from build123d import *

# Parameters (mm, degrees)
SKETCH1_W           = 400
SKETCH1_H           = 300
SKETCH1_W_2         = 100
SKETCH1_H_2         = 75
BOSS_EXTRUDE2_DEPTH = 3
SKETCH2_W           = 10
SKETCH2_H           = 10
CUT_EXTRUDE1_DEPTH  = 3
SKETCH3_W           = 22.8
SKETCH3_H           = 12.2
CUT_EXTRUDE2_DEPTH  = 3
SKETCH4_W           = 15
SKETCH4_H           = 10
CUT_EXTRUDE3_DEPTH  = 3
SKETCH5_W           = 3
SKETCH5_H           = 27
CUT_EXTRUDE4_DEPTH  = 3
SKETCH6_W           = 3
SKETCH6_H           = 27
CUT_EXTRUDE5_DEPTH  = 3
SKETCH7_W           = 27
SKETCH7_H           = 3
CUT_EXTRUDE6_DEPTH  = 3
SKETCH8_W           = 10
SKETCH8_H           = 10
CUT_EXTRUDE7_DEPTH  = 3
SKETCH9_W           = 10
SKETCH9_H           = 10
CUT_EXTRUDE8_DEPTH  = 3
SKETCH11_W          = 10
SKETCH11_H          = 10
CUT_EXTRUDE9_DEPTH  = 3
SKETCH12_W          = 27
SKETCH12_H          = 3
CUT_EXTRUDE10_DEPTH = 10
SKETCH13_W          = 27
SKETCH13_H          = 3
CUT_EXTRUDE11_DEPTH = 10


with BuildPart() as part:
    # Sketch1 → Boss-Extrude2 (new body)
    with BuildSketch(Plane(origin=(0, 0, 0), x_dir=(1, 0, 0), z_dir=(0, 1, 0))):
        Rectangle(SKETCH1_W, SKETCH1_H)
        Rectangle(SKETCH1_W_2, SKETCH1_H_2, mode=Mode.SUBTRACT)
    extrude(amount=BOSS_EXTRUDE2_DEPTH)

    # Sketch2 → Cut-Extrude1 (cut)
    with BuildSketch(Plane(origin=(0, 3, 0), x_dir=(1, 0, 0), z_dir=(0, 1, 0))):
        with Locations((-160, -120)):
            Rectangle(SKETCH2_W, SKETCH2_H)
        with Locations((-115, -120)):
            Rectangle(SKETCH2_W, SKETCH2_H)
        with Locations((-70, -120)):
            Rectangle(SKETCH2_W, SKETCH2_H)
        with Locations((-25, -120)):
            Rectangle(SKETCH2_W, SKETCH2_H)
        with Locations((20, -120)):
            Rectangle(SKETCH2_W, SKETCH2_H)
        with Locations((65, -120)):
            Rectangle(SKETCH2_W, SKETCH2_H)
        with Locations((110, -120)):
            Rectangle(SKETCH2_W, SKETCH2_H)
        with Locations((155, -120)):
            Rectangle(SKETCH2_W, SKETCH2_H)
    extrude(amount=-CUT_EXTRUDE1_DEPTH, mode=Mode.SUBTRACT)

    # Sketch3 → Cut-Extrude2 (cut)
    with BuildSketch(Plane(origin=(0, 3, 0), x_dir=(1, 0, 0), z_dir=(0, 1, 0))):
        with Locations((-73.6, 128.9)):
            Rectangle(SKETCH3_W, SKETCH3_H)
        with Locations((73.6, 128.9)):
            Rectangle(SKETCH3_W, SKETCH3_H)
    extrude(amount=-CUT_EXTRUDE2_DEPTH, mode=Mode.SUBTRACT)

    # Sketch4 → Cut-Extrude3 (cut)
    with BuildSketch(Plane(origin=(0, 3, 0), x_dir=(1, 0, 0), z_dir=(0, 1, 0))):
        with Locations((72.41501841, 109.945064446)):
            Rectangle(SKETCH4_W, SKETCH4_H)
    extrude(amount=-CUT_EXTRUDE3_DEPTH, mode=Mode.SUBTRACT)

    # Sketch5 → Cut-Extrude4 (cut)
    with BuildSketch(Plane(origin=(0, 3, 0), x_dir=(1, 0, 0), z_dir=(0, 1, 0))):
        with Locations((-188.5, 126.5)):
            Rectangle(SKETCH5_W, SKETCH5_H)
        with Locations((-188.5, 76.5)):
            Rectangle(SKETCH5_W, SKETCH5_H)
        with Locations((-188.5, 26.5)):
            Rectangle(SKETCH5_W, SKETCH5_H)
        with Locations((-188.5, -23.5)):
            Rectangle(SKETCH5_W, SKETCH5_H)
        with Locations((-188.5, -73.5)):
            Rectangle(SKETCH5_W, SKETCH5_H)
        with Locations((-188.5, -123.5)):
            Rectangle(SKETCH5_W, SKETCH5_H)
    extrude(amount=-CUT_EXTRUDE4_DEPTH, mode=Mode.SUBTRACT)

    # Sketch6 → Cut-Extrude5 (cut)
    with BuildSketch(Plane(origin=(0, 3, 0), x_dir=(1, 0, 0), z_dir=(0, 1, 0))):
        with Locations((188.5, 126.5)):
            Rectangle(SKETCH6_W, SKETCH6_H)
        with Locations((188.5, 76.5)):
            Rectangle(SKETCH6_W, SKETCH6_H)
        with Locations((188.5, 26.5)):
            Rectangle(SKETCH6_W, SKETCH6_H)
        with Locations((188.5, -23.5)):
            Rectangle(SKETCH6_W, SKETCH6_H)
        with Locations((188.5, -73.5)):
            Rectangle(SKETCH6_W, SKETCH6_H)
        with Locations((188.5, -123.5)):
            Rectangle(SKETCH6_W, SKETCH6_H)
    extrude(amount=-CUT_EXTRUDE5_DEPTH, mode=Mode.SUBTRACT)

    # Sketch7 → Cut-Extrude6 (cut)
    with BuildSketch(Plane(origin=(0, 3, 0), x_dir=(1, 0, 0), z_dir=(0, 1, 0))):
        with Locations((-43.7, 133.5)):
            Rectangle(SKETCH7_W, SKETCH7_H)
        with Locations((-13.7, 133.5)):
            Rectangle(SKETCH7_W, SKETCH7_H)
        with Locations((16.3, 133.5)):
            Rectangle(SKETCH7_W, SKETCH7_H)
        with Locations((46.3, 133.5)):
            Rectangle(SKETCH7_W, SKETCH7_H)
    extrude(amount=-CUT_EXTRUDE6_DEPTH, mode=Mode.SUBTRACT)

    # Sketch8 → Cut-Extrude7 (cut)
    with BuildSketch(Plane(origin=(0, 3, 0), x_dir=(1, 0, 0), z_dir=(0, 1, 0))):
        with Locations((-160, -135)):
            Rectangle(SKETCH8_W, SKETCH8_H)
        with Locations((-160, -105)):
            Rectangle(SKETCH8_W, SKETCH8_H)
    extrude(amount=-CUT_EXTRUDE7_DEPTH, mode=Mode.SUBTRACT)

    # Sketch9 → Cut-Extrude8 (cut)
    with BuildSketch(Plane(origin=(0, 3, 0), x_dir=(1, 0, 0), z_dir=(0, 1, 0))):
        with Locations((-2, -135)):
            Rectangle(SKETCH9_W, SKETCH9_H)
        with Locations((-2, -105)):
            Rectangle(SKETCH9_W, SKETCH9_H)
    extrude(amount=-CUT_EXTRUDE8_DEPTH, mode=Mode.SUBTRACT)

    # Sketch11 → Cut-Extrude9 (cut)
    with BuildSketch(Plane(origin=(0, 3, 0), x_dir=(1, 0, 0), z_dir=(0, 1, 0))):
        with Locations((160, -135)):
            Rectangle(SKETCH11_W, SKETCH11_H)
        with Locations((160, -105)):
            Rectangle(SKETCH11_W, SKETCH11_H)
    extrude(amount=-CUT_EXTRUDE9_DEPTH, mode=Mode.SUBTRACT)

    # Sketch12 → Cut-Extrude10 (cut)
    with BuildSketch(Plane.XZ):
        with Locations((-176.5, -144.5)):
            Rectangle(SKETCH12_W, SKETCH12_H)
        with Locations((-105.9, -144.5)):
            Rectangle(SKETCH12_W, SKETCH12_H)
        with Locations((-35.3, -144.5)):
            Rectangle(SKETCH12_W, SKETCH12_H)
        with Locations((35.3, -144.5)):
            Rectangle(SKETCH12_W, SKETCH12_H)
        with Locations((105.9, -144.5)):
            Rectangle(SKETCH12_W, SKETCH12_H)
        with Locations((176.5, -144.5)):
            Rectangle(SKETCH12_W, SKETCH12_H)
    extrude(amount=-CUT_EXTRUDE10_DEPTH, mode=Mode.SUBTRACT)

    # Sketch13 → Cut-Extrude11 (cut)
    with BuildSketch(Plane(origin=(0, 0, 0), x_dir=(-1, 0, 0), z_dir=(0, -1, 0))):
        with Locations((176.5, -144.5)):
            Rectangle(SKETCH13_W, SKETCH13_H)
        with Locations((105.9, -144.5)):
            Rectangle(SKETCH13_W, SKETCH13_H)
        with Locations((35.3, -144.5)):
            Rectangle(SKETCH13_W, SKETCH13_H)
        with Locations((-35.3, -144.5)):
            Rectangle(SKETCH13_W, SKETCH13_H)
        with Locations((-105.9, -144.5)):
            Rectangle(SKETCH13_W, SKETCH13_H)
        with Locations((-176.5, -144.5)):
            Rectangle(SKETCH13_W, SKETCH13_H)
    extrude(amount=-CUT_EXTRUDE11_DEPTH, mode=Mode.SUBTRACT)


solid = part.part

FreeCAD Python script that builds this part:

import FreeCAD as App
import Part
import Sketcher

V = App.Vector
Q = App.Units.Quantity

doc = App.newDocument("Part")
body = doc.addObject("PartDesign::Body", "Body")

sketch1 = doc.addObject("Sketcher::SketchObject", "Sketch")
body.addObject(sketch1)
sketch1.AttachmentSupport = (doc.XZ_Plane, [""])
sketch1.MapMode = "FlatFace"
sketch1.addGeometry([
    Part.LineSegment(V(-200, -150, 0), V(-200, 150, 0)),
    Part.LineSegment(V(-200, 150, 0), V(200, 150, 0)),
    Part.LineSegment(V(200, 150, 0), V(200, -150, 0)),
    Part.LineSegment(V(200, -150, 0), V(-200, -150, 0)),
    Part.LineSegment(V(50, 38, 0), V(-50, 38, 0)),
    Part.LineSegment(V(-50, 38, 0), V(-50, -38, 0)),
    Part.LineSegment(V(-50, -38, 0), V(50, -38, 0)),
    Part.LineSegment(V(50, -38, 0), V(50, 38, 0)),
], False)
sketch1.addConstraint([
    Sketcher.Constraint("Coincident", 0, 2, 1, 1),
    Sketcher.Constraint("Coincident", 1, 2, 2, 1),
    Sketcher.Constraint("Coincident", 2, 2, 3, 1),
    Sketcher.Constraint("Coincident", 3, 2, 0, 1),
    Sketcher.Constraint("Coincident", 4, 2, 5, 1),
    Sketcher.Constraint("Coincident", 5, 2, 6, 1),
    Sketcher.Constraint("Coincident", 6, 2, 7, 1),
    Sketcher.Constraint("Coincident", 7, 2, 4, 1),
    Sketcher.Constraint("Vertical", 0),
    Sketcher.Constraint("Horizontal", 1),
    Sketcher.Constraint("Vertical", 2),
    Sketcher.Constraint("Horizontal", 3),
    Sketcher.Constraint("Horizontal", 4),
    Sketcher.Constraint("Vertical", 5),
    Sketcher.Constraint("Horizontal", 6),
    Sketcher.Constraint("Vertical", 7),
    Sketcher.Constraint("Symmetric", 0, 2, 2, 2, -1, 1),
    Sketcher.Constraint("Symmetric", 4, 2, 6, 2, -1, 1),
    Sketcher.Constraint("DistanceX", 1, 1, 1, 2, Q("400 mm")),
    Sketcher.Constraint("DistanceX", 4, 2, 4, 1, Q("100 mm")),
    Sketcher.Constraint("DistanceY", 0, 1, 0, 2, Q("300 mm")),
    Sketcher.Constraint("DistanceY", 5, 2, 5, 1, Q("75 mm")),
])
pad1 = doc.addObject("PartDesign::Pad", "Pad")
body.addObject(pad1)
pad1.Profile = sketch1
pad1.Length = 3
pad1.Reversed = True

sketch2 = doc.addObject("Sketcher::SketchObject", "Sketch001")
body.addObject(sketch2)
sketch2.AttachmentSupport = (doc.XZ_Plane, [""])
sketch2.MapMode = "FlatFace"
sketch2.AttachmentOffset = App.Placement(V(0, 0, -3), App.Rotation())
sketch2.addGeometry([
    Part.LineSegment(V(-165, 115, 0), V(-165, 125, 0)),
    Part.LineSegment(V(-165, 125, 0), V(-155, 125, 0)),
    Part.LineSegment(V(-155, 125, 0), V(-155, 115, 0)),
    Part.LineSegment(V(-155, 115, 0), V(-165, 115, 0)),
    Part.LineSegment(V(-120, 115, 0), V(-120, 125, 0)),
    Part.LineSegment(V(-120, 125, 0), V(-110, 125, 0)),
    Part.LineSegment(V(-110, 125, 0), V(-110, 115, 0)),
    Part.LineSegment(V(-110, 115, 0), V(-120, 115, 0)),
    Part.LineSegment(V(-75, 115, 0), V(-75, 125, 0)),
    Part.LineSegment(V(-75, 125, 0), V(-65, 125, 0)),
    Part.LineSegment(V(-65, 125, 0), V(-65, 115, 0)),
    Part.LineSegment(V(-65, 115, 0), V(-75, 115, 0)),
    Part.LineSegment(V(-30, 115, 0), V(-30, 125, 0)),
    Part.LineSegment(V(-30, 125, 0), V(-20, 125, 0)),
    Part.LineSegment(V(-20, 125, 0), V(-20, 115, 0)),
    Part.LineSegment(V(-20, 115, 0), V(-30, 115, 0)),
    Part.LineSegment(V(15, 115, 0), V(15, 125, 0)),
    Part.LineSegment(V(15, 125, 0), V(25, 125, 0)),
    Part.LineSegment(V(25, 125, 0), V(25, 115, 0)),
    Part.LineSegment(V(25, 115, 0), V(15, 115, 0)),
    Part.LineSegment(V(60, 115, 0), V(60, 125, 0)),
    Part.LineSegment(V(60, 125, 0), V(70, 125, 0)),
    Part.LineSegment(V(70, 125, 0), V(70, 115, 0)),
    Part.LineSegment(V(70, 115, 0), V(60, 115, 0)),
    Part.LineSegment(V(105, 115, 0), V(105, 125, 0)),
    Part.LineSegment(V(105, 125, 0), V(115, 125, 0)),
    Part.LineSegment(V(115, 125, 0), V(115, 115, 0)),
    Part.LineSegment(V(115, 115, 0), V(105, 115, 0)),
    Part.LineSegment(V(150, 115, 0), V(150, 125, 0)),
    Part.LineSegment(V(150, 125, 0), V(160, 125, 0)),
    Part.LineSegment(V(160, 125, 0), V(160, 115, 0)),
    Part.LineSegment(V(160, 115, 0), V(150, 115, 0)),
], False)
sketch2.addConstraint([
    Sketcher.Constraint("Coincident", 0, 2, 1, 1),
    Sketcher.Constraint("Coincident", 1, 2, 2, 1),
    Sketcher.Constraint("Coincident", 2, 2, 3, 1),
    Sketcher.Constraint("Coincident", 3, 2, 0, 1),
    Sketcher.Constraint("Coincident", 4, 2, 5, 1),
    Sketcher.Constraint("Coincident", 5, 2, 6, 1),
    Sketcher.Constraint("Coincident", 6, 2, 7, 1),
    Sketcher.Constraint("Coincident", 7, 2, 4, 1),
    Sketcher.Constraint("Coincident", 8, 2, 9, 1),
    Sketcher.Constraint("Coincident", 9, 2, 10, 1),
    Sketcher.Constraint("Coincident", 10, 2, 11, 1),
    Sketcher.Constraint("Coincident", 11, 2, 8, 1),
    Sketcher.Constraint("Coincident", 12, 2, 13, 1),
    Sketcher.Constraint("Coincident", 13, 2, 14, 1),
    Sketcher.Constraint("Coincident", 14, 2, 15, 1),
    Sketcher.Constraint("Coincident", 15, 2, 12, 1),
    Sketcher.Constraint("Coincident", 16, 2, 17, 1),
    Sketcher.Constraint("Coincident", 17, 2, 18, 1),
    Sketcher.Constraint("Coincident", 18, 2, 19, 1),
    Sketcher.Constraint("Coincident", 19, 2, 16, 1),
    Sketcher.Constraint("Coincident", 20, 2, 21, 1),
    Sketcher.Constraint("Coincident", 21, 2, 22, 1),
    Sketcher.Constraint("Coincident", 22, 2, 23, 1),
    Sketcher.Constraint("Coincident", 23, 2, 20, 1),
    Sketcher.Constraint("Coincident", 24, 2, 25, 1),
    Sketcher.Constraint("Coincident", 25, 2, 26, 1),
    Sketcher.Constraint("Coincident", 26, 2, 27, 1),
    Sketcher.Constraint("Coincident", 27, 2, 24, 1),
    Sketcher.Constraint("Coincident", 28, 2, 29, 1),
    Sketcher.Constraint("Coincident", 29, 2, 30, 1),
    Sketcher.Constraint("Coincident", 30, 2, 31, 1),
    Sketcher.Constraint("Coincident", 31, 2, 28, 1),
    Sketcher.Constraint("Vertical", 0),
    Sketcher.Constraint("Horizontal", 1),
    Sketcher.Constraint("Vertical", 2),
    Sketcher.Constraint("Horizontal", 3),
    Sketcher.Constraint("Vertical", 4),
    Sketcher.Constraint("Horizontal", 5),
    Sketcher.Constraint("Vertical", 6),
    Sketcher.Constraint("Horizontal", 7),
    Sketcher.Constraint("Vertical", 8),
    Sketcher.Constraint("Horizontal", 9),
    Sketcher.Constraint("Vertical", 10),
    Sketcher.Constraint("Horizontal", 11),
    Sketcher.Constraint("Vertical", 12),
    Sketcher.Constraint("Horizontal", 13),
    Sketcher.Constraint("Vertical", 14),
    Sketcher.Constraint("Horizontal", 15),
    Sketcher.Constraint("Vertical", 16),
    Sketcher.Constraint("Horizontal", 17),
    Sketcher.Constraint("Vertical", 18),
    Sketcher.Constraint("Horizontal", 19),
    Sketcher.Constraint("Vertical", 20),
    Sketcher.Constraint("Horizontal", 21),
    Sketcher.Constraint("Vertical", 22),
    Sketcher.Constraint("Horizontal", 23),
    Sketcher.Constraint("Vertical", 24),
    Sketcher.Constraint("Horizontal", 25),
    Sketcher.Constraint("Vertical", 26),
    Sketcher.Constraint("Horizontal", 27),
    Sketcher.Constraint("Vertical", 28),
    Sketcher.Constraint("Horizontal", 29),
    Sketcher.Constraint("Vertical", 30),
    Sketcher.Constraint("Horizontal", 31),
    Sketcher.Constraint("Horizontal", 1, 2, 4, 2),
    Sketcher.Constraint("Horizontal", 3, 2, 6, 2),
    Sketcher.Constraint("Horizontal", 5, 2, 8, 2),
    Sketcher.Constraint("Horizontal", 7, 2, 10, 2),
    Sketcher.Constraint("Horizontal", 9, 2, 12, 2),
    Sketcher.Constraint("Horizontal", 11, 2, 14, 2),
    Sketcher.Constraint("Horizontal", 13, 2, 16, 2),
    Sketcher.Constraint("Horizontal", 15, 2, 18, 2),
    Sketcher.Constraint("Horizontal", 17, 2, 20, 2),
    Sketcher.Constraint("Horizontal", 19, 2, 22, 2),
    Sketcher.Constraint("Horizontal", 21, 2, 24, 2),
    Sketcher.Constraint("Horizontal", 23, 2, 26, 2),
    Sketcher.Constraint("Horizontal", 25, 2, 28, 2),
    Sketcher.Constraint("Horizontal", 27, 2, 30, 2),
    Sketcher.Constraint("Equal", 3, 5),
    Sketcher.Constraint("Equal", 7, 9),
    Sketcher.Constraint("Equal", 11, 13),
    Sketcher.Constraint("Equal", 15, 17),
    Sketcher.Constraint("Equal", 19, 21),
    Sketcher.Constraint("Equal", 23, 25),
    Sketcher.Constraint("Equal", 27, 29),
    Sketcher.Constraint("Equal", 31, 0),
    Sketcher.Constraint("DistanceX", 1, 1, 1, 2, Q("10 mm")),
    Sketcher.Constraint("DistanceX", 0, 2, -1, 1, Q("165 mm")),
    Sketcher.Constraint("DistanceY", -1, 1, 0, 2, Q("125 mm")),
    Sketcher.Constraint("DistanceX", 4, 2, -1, 1, Q("120 mm")),
    Sketcher.Constraint("DistanceX", 8, 2, -1, 1, Q("75 mm")),
    Sketcher.Constraint("DistanceX", 12, 2, -1, 1, Q("30 mm")),
    Sketcher.Constraint("DistanceX", -1, 1, 16, 2, Q("15 mm")),
    Sketcher.Constraint("DistanceX", -1, 1, 20, 2, Q("60 mm")),
    Sketcher.Constraint("DistanceX", -1, 1, 24, 2, Q("105 mm")),
    Sketcher.Constraint("DistanceX", -1, 1, 28, 2, Q("150 mm")),
])
pocket1 = doc.addObject("PartDesign::Pocket", "Pocket")
body.addObject(pocket1)
pocket1.Profile = sketch2
pocket1.Length = 3
pocket1.Reversed = True

sketch3 = doc.addObject("Sketcher::SketchObject", "Sketch002")
body.addObject(sketch3)
sketch3.AttachmentSupport = (doc.XZ_Plane, [""])
sketch3.MapMode = "FlatFace"
sketch3.AttachmentOffset = App.Placement(V(0, 0, -3), App.Rotation())
sketch3.addGeometry([
    Part.LineSegment(V(-85, -135, 0), V(-85, -123, 0)),
    Part.LineSegment(V(-85, -123, 0), V(-62, -123, 0)),
    Part.LineSegment(V(-62, -123, 0), V(-62, -135, 0)),
    Part.LineSegment(V(-62, -135, 0), V(-85, -135, 0)),
    Part.LineSegment(V(62, -135, 0), V(62, -123, 0)),
    Part.LineSegment(V(62, -123, 0), V(85, -123, 0)),
    Part.LineSegment(V(85, -123, 0), V(85, -135, 0)),
    Part.LineSegment(V(85, -135, 0), V(62, -135, 0)),
], False)
sketch3.addConstraint([
    Sketcher.Constraint("Coincident", 0, 2, 1, 1),
    Sketcher.Constraint("Coincident", 1, 2, 2, 1),
    Sketcher.Constraint("Coincident", 2, 2, 3, 1),
    Sketcher.Constraint("Coincident", 3, 2, 0, 1),
    Sketcher.Constraint("Coincident", 4, 2, 5, 1),
    Sketcher.Constraint("Coincident", 5, 2, 6, 1),
    Sketcher.Constraint("Coincident", 6, 2, 7, 1),
    Sketcher.Constraint("Coincident", 7, 2, 4, 1),
    Sketcher.Constraint("Vertical", 0),
    Sketcher.Constraint("Horizontal", 1),
    Sketcher.Constraint("Vertical", 2),
    Sketcher.Constraint("Horizontal", 3),
    Sketcher.Constraint("Vertical", 4),
    Sketcher.Constraint("Horizontal", 5),
    Sketcher.Constraint("Vertical", 6),
    Sketcher.Constraint("Horizontal", 7),
    Sketcher.Constraint("Symmetric", 1, 2, 4, 2, -2),
    Sketcher.Constraint("Symmetric", 3, 2, 6, 2, -2),
    Sketcher.Constraint("DistanceX", 1, 1, 1, 2, Q("22.8 mm")),
    Sketcher.Constraint("DistanceY", 0, 1, 0, 2, Q("12.2 mm")),
    Sketcher.Constraint("DistanceX", 0, 2, -1, 1, Q("85 mm")),
    Sketcher.Constraint("DistanceY", 2, 2, -1, 1, Q("135 mm")),
])
pocket2 = doc.addObject("PartDesign::Pocket", "Pocket001")
body.addObject(pocket2)
pocket2.Profile = sketch3
pocket2.Length = 3
pocket2.Reversed = True

sketch4 = doc.addObject("Sketcher::SketchObject", "Sketch003")
body.addObject(sketch4)
sketch4.AttachmentSupport = (doc.XZ_Plane, [""])
sketch4.MapMode = "FlatFace"
sketch4.AttachmentOffset = App.Placement(V(0, 0, -3), App.Rotation())
sketch4.addGeometry([
    Part.LineSegment(V(65, -115, 0), V(65, -105, 0)),
    Part.LineSegment(V(65, -105, 0), V(80, -105, 0)),
    Part.LineSegment(V(80, -105, 0), V(80, -115, 0)),
    Part.LineSegment(V(80, -115, 0), V(65, -115, 0)),
], False)
sketch4.addConstraint([
    Sketcher.Constraint("Coincident", 0, 2, 1, 1),
    Sketcher.Constraint("Coincident", 1, 2, 2, 1),
    Sketcher.Constraint("Coincident", 2, 2, 3, 1),
    Sketcher.Constraint("Coincident", 3, 2, 0, 1),
    Sketcher.Constraint("Vertical", 0),
    Sketcher.Constraint("Horizontal", 1),
    Sketcher.Constraint("Vertical", 2),
    Sketcher.Constraint("Horizontal", 3),
    Sketcher.Constraint("DistanceX", 1, 1, 1, 2, Q("15 mm")),
    Sketcher.Constraint("DistanceY", 0, 1, 0, 2, Q("10 mm")),
    Sketcher.Constraint("DistanceX", -1, 1, 0, 2, Q("64.915018 mm")),
    Sketcher.Constraint("DistanceY", 0, 2, -1, 1, Q("104.945064 mm")),
])
pocket3 = doc.addObject("PartDesign::Pocket", "Pocket002")
body.addObject(pocket3)
pocket3.Profile = sketch4
pocket3.Length = 3
pocket3.Reversed = True

sketch5 = doc.addObject("Sketcher::SketchObject", "Sketch004")
body.addObject(sketch5)
sketch5.AttachmentSupport = (doc.XZ_Plane, [""])
sketch5.MapMode = "FlatFace"
sketch5.AttachmentOffset = App.Placement(V(0, 0, -3), App.Rotation())
sketch5.addGeometry([
    Part.LineSegment(V(-190, -140, 0), V(-190, -113, 0)),
    Part.LineSegment(V(-190, -113, 0), V(-187, -113, 0)),
    Part.LineSegment(V(-187, -113, 0), V(-187, -140, 0)),
    Part.LineSegment(V(-187, -140, 0), V(-190, -140, 0)),
    Part.LineSegment(V(-190, -90, 0), V(-190, -63, 0)),
    Part.LineSegment(V(-190, -63, 0), V(-187, -63, 0)),
    Part.LineSegment(V(-187, -63, 0), V(-187, -90, 0)),
    Part.LineSegment(V(-187, -90, 0), V(-190, -90, 0)),
    Part.LineSegment(V(-190, -40, 0), V(-190, -13, 0)),
    Part.LineSegment(V(-190, -13, 0), V(-187, -13, 0)),
    Part.LineSegment(V(-187, -13, 0), V(-187, -40, 0)),
    Part.LineSegment(V(-187, -40, 0), V(-190, -40, 0)),
    Part.LineSegment(V(-190, 10, 0), V(-190, 37, 0)),
    Part.LineSegment(V(-190, 37, 0), V(-187, 37, 0)),
    Part.LineSegment(V(-187, 37, 0), V(-187, 10, 0)),
    Part.LineSegment(V(-187, 10, 0), V(-190, 10, 0)),
    Part.LineSegment(V(-190, 60, 0), V(-190, 87, 0)),
    Part.LineSegment(V(-190, 87, 0), V(-187, 87, 0)),
    Part.LineSegment(V(-187, 87, 0), V(-187, 60, 0)),
    Part.LineSegment(V(-187, 60, 0), V(-190, 60, 0)),
    Part.LineSegment(V(-190, 110, 0), V(-190, 137, 0)),
    Part.LineSegment(V(-190, 137, 0), V(-187, 137, 0)),
    Part.LineSegment(V(-187, 137, 0), V(-187, 110, 0)),
    Part.LineSegment(V(-187, 110, 0), V(-190, 110, 0)),
], False)
sketch5.addConstraint([
    Sketcher.Constraint("Coincident", 0, 2, 1, 1),
    Sketcher.Constraint("Coincident", 1, 2, 2, 1),
    Sketcher.Constraint("Coincident", 2, 2, 3, 1),
    Sketcher.Constraint("Coincident", 3, 2, 0, 1),
    Sketcher.Constraint("Coincident", 4, 2, 5, 1),
    Sketcher.Constraint("Coincident", 5, 2, 6, 1),
    Sketcher.Constraint("Coincident", 6, 2, 7, 1),
    Sketcher.Constraint("Coincident", 7, 2, 4, 1),
    Sketcher.Constraint("Coincident", 8, 2, 9, 1),
    Sketcher.Constraint("Coincident", 9, 2, 10, 1),
    Sketcher.Constraint("Coincident", 10, 2, 11, 1),
    Sketcher.Constraint("Coincident", 11, 2, 8, 1),
    Sketcher.Constraint("Coincident", 12, 2, 13, 1),
    Sketcher.Constraint("Coincident", 13, 2, 14, 1),
    Sketcher.Constraint("Coincident", 14, 2, 15, 1),
    Sketcher.Constraint("Coincident", 15, 2, 12, 1),
    Sketcher.Constraint("Coincident", 16, 2, 17, 1),
    Sketcher.Constraint("Coincident", 17, 2, 18, 1),
    Sketcher.Constraint("Coincident", 18, 2, 19, 1),
    Sketcher.Constraint("Coincident", 19, 2, 16, 1),
    Sketcher.Constraint("Coincident", 20, 2, 21, 1),
    Sketcher.Constraint("Coincident", 21, 2, 22, 1),
    Sketcher.Constraint("Coincident", 22, 2, 23, 1),
    Sketcher.Constraint("Coincident", 23, 2, 20, 1),
    Sketcher.Constraint("Vertical", 0),
    Sketcher.Constraint("Horizontal", 1),
    Sketcher.Constraint("Vertical", 2),
    Sketcher.Constraint("Horizontal", 3),
    Sketcher.Constraint("Vertical", 4),
    Sketcher.Constraint("Horizontal", 5),
    Sketcher.Constraint("Vertical", 6),
    Sketcher.Constraint("Horizontal", 7),
    Sketcher.Constraint("Vertical", 8),
    Sketcher.Constraint("Horizontal", 9),
    Sketcher.Constraint("Vertical", 10),
    Sketcher.Constraint("Horizontal", 11),
    Sketcher.Constraint("Vertical", 12),
    Sketcher.Constraint("Horizontal", 13),
    Sketcher.Constraint("Vertical", 14),
    Sketcher.Constraint("Horizontal", 15),
    Sketcher.Constraint("Vertical", 16),
    Sketcher.Constraint("Horizontal", 17),
    Sketcher.Constraint("Vertical", 18),
    Sketcher.Constraint("Horizontal", 19),
    Sketcher.Constraint("Vertical", 20),
    Sketcher.Constraint("Horizontal", 21),
    Sketcher.Constraint("Vertical", 22),
    Sketcher.Constraint("Horizontal", 23),
    Sketcher.Constraint("Vertical", 3, 2, 4, 2),
    Sketcher.Constraint("Vertical", 2, 2, 5, 2),
    Sketcher.Constraint("Vertical", 7, 2, 8, 2),
    Sketcher.Constraint("Vertical", 6, 2, 9, 2),
    Sketcher.Constraint("Vertical", 11, 2, 12, 2),
    Sketcher.Constraint("Vertical", 10, 2, 13, 2),
    Sketcher.Constraint("Vertical", 15, 2, 16, 2),
    Sketcher.Constraint("Vertical", 14, 2, 17, 2),
    Sketcher.Constraint("Vertical", 19, 2, 20, 2),
    Sketcher.Constraint("Vertical", 18, 2, 21, 2),
    Sketcher.Constraint("Equal", 2, 4),
    Sketcher.Constraint("Equal", 6, 8),
    Sketcher.Constraint("Equal", 10, 12),
    Sketcher.Constraint("Equal", 14, 16),
    Sketcher.Constraint("Equal", 18, 20),
    Sketcher.Constraint("DistanceX", 1, 1, 1, 2, Q("3 mm")),
    Sketcher.Constraint("DistanceY", 0, 1, 0, 2, Q("27 mm")),
    Sketcher.Constraint("DistanceX", 0, 2, -1, 1, Q("190 mm")),
    Sketcher.Constraint("DistanceY", 0, 2, -1, 1, Q("113 mm")),
    Sketcher.Constraint("DistanceY", 4, 2, -1, 1, Q("63 mm")),
    Sketcher.Constraint("DistanceY", 8, 2, -1, 1, Q("13 mm")),
    Sketcher.Constraint("DistanceY", -1, 1, 12, 2, Q("37 mm")),
    Sketcher.Constraint("DistanceY", -1, 1, 16, 2, Q("87 mm")),
    Sketcher.Constraint("DistanceY", -1, 1, 20, 2, Q("137 mm")),
])
pocket4 = doc.addObject("PartDesign::Pocket", "Pocket003")
body.addObject(pocket4)
pocket4.Profile = sketch5
pocket4.Length = 3
pocket4.Reversed = True

sketch6 = doc.addObject("Sketcher::SketchObject", "Sketch005")
body.addObject(sketch6)
sketch6.AttachmentSupport = (doc.XZ_Plane, [""])
sketch6.MapMode = "FlatFace"
sketch6.AttachmentOffset = App.Placement(V(0, 0, -3), App.Rotation())
sketch6.addGeometry([
    Part.LineSegment(V(187, -140, 0), V(187, -113, 0)),
    Part.LineSegment(V(187, -113, 0), V(190, -113, 0)),
    Part.LineSegment(V(190, -113, 0), V(190, -140, 0)),
    Part.LineSegment(V(190, -140, 0), V(187, -140, 0)),
    Part.LineSegment(V(187, -90, 0), V(187, -63, 0)),
    Part.LineSegment(V(187, -63, 0), V(190, -63, 0)),
    Part.LineSegment(V(190, -63, 0), V(190, -90, 0)),
    Part.LineSegment(V(190, -90, 0), V(187, -90, 0)),
    Part.LineSegment(V(187, -40, 0), V(187, -13, 0)),
    Part.LineSegment(V(187, -13, 0), V(190, -13, 0)),
    Part.LineSegment(V(190, -13, 0), V(190, -40, 0)),
    Part.LineSegment(V(190, -40, 0), V(187, -40, 0)),
    Part.LineSegment(V(187, 10, 0), V(187, 37, 0)),
    Part.LineSegment(V(187, 37, 0), V(190, 37, 0)),
    Part.LineSegment(V(190, 37, 0), V(190, 10, 0)),
    Part.LineSegment(V(190, 10, 0), V(187, 10, 0)),
    Part.LineSegment(V(187, 60, 0), V(187, 87, 0)),
    Part.LineSegment(V(187, 87, 0), V(190, 87, 0)),
    Part.LineSegment(V(190, 87, 0), V(190, 60, 0)),
    Part.LineSegment(V(190, 60, 0), V(187, 60, 0)),
    Part.LineSegment(V(187, 110, 0), V(187, 137, 0)),
    Part.LineSegment(V(187, 137, 0), V(190, 137, 0)),
    Part.LineSegment(V(190, 137, 0), V(190, 110, 0)),
    Part.LineSegment(V(190, 110, 0), V(187, 110, 0)),
], False)
sketch6.addConstraint([
    Sketcher.Constraint("Coincident", 0, 2, 1, 1),
    Sketcher.Constraint("Coincident", 1, 2, 2, 1),
    Sketcher.Constraint("Coincident", 2, 2, 3, 1),
    Sketcher.Constraint("Coincident", 3, 2, 0, 1),
    Sketcher.Constraint("Coincident", 4, 2, 5, 1),
    Sketcher.Constraint("Coincident", 5, 2, 6, 1),
    Sketcher.Constraint("Coincident", 6, 2, 7, 1),
    Sketcher.Constraint("Coincident", 7, 2, 4, 1),
    Sketcher.Constraint("Coincident", 8, 2, 9, 1),
    Sketcher.Constraint("Coincident", 9, 2, 10, 1),
    Sketcher.Constraint("Coincident", 10, 2, 11, 1),
    Sketcher.Constraint("Coincident", 11, 2, 8, 1),
    Sketcher.Constraint("Coincident", 12, 2, 13, 1),
    Sketcher.Constraint("Coincident", 13, 2, 14, 1),
    Sketcher.Constraint("Coincident", 14, 2, 15, 1),
    Sketcher.Constraint("Coincident", 15, 2, 12, 1),
    Sketcher.Constraint("Coincident", 16, 2, 17, 1),
    Sketcher.Constraint("Coincident", 17, 2, 18, 1),
    Sketcher.Constraint("Coincident", 18, 2, 19, 1),
    Sketcher.Constraint("Coincident", 19, 2, 16, 1),
    Sketcher.Constraint("Coincident", 20, 2, 21, 1),
    Sketcher.Constraint("Coincident", 21, 2, 22, 1),
    Sketcher.Constraint("Coincident", 22, 2, 23, 1),
    Sketcher.Constraint("Coincident", 23, 2, 20, 1),
    Sketcher.Constraint("Vertical", 0),
    Sketcher.Constraint("Horizontal", 1),
    Sketcher.Constraint("Vertical", 2),
    Sketcher.Constraint("Horizontal", 3),
    Sketcher.Constraint("Vertical", 4),
    Sketcher.Constraint("Horizontal", 5),
    Sketcher.Constraint("Vertical", 6),
    Sketcher.Constraint("Horizontal", 7),
    Sketcher.Constraint("Vertical", 8),
    Sketcher.Constraint("Horizontal", 9),
    Sketcher.Constraint("Vertical", 10),
    Sketcher.Constraint("Horizontal", 11),
    Sketcher.Constraint("Vertical", 12),
    Sketcher.Constraint("Horizontal", 13),
    Sketcher.Constraint("Vertical", 14),
    Sketcher.Constraint("Horizontal", 15),
    Sketcher.Constraint("Vertical", 16),
    Sketcher.Constraint("Horizontal", 17),
    Sketcher.Constraint("Vertical", 18),
    Sketcher.Constraint("Horizontal", 19),
    Sketcher.Constraint("Vertical", 20),
    Sketcher.Constraint("Horizontal", 21),
    Sketcher.Constraint("Vertical", 22),
    Sketcher.Constraint("Horizontal", 23),
    Sketcher.Constraint("Vertical", 3, 2, 4, 2),
    Sketcher.Constraint("Vertical", 2, 2, 5, 2),
    Sketcher.Constraint("Vertical", 7, 2, 8, 2),
    Sketcher.Constraint("Vertical", 6, 2, 9, 2),
    Sketcher.Constraint("Vertical", 11, 2, 12, 2),
    Sketcher.Constraint("Vertical", 10, 2, 13, 2),
    Sketcher.Constraint("Vertical", 15, 2, 16, 2),
    Sketcher.Constraint("Vertical", 14, 2, 17, 2),
    Sketcher.Constraint("Vertical", 19, 2, 20, 2),
    Sketcher.Constraint("Vertical", 18, 2, 21, 2),
    Sketcher.Constraint("Equal", 2, 4),
    Sketcher.Constraint("Equal", 6, 8),
    Sketcher.Constraint("Equal", 10, 12),
    Sketcher.Constraint("Equal", 14, 16),
    Sketcher.Constraint("Equal", 18, 20),
    Sketcher.Constraint("DistanceX", 1, 1, 1, 2, Q("3 mm")),
    Sketcher.Constraint("DistanceY", 0, 1, 0, 2, Q("27 mm")),
    Sketcher.Constraint("DistanceX", -1, 1, 0, 2, Q("187 mm")),
    Sketcher.Constraint("DistanceY", 0, 2, -1, 1, Q("113 mm")),
    Sketcher.Constraint("DistanceY", 4, 2, -1, 1, Q("63 mm")),
    Sketcher.Constraint("DistanceY", 8, 2, -1, 1, Q("13 mm")),
    Sketcher.Constraint("DistanceY", -1, 1, 12, 2, Q("37 mm")),
    Sketcher.Constraint("DistanceY", -1, 1, 16, 2, Q("87 mm")),
    Sketcher.Constraint("DistanceY", -1, 1, 20, 2, Q("137 mm")),
])
pocket5 = doc.addObject("PartDesign::Pocket", "Pocket004")
body.addObject(pocket5)
pocket5.Profile = sketch6
pocket5.Length = 3
pocket5.Reversed = True

sketch7 = doc.addObject("Sketcher::SketchObject", "Sketch006")
body.addObject(sketch7)
sketch7.AttachmentSupport = (doc.XZ_Plane, [""])
sketch7.MapMode = "FlatFace"
sketch7.AttachmentOffset = App.Placement(V(0, 0, -3), App.Rotation())
sketch7.addGeometry([
    Part.LineSegment(V(-57.2, -135, 0), V(-57.2, -132, 0)),
    Part.LineSegment(V(-57.2, -132, 0), V(-30.2, -132, 0)),
    Part.LineSegment(V(-30.2, -132, 0), V(-30.2, -135, 0)),
    Part.LineSegment(V(-30.2, -135, 0), V(-57.2, -135, 0)),
    Part.LineSegment(V(-27.2, -135, 0), V(-27.2, -132, 0)),
    Part.LineSegment(V(-27.2, -132, 0), V(-0.2, -132, 0)),
    Part.LineSegment(V(-0.2, -132, 0), V(-0.2, -135, 0)),
    Part.LineSegment(V(-0.2, -135, 0), V(-27.2, -135, 0)),
    Part.LineSegment(V(2.8, -135, 0), V(2.8, -132, 0)),
    Part.LineSegment(V(2.8, -132, 0), V(29.8, -132, 0)),
    Part.LineSegment(V(29.8, -132, 0), V(29.8, -135, 0)),
    Part.LineSegment(V(29.8, -135, 0), V(2.8, -135, 0)),
    Part.LineSegment(V(32.8, -135, 0), V(32.8, -132, 0)),
    Part.LineSegment(V(32.8, -132, 0), V(59.8, -132, 0)),
    Part.LineSegment(V(59.8, -132, 0), V(59.8, -135, 0)),
    Part.LineSegment(V(59.8, -135, 0), V(32.8, -135, 0)),
], False)
sketch7.addConstraint([
    Sketcher.Constraint("Coincident", 0, 2, 1, 1),
    Sketcher.Constraint("Coincident", 1, 2, 2, 1),
    Sketcher.Constraint("Coincident", 2, 2, 3, 1),
    Sketcher.Constraint("Coincident", 3, 2, 0, 1),
    Sketcher.Constraint("Coincident", 4, 2, 5, 1),
    Sketcher.Constraint("Coincident", 5, 2, 6, 1),
    Sketcher.Constraint("Coincident", 6, 2, 7, 1),
    Sketcher.Constraint("Coincident", 7, 2, 4, 1),
    Sketcher.Constraint("Coincident", 8, 2, 9, 1),
    Sketcher.Constraint("Coincident", 9, 2, 10, 1),
    Sketcher.Constraint("Coincident", 10, 2, 11, 1),
    Sketcher.Constraint("Coincident", 11, 2, 8, 1),
    Sketcher.Constraint("Coincident", 12, 2, 13, 1),
    Sketcher.Constraint("Coincident", 13, 2, 14, 1),
    Sketcher.Constraint("Coincident", 14, 2, 15, 1),
    Sketcher.Constraint("Coincident", 15, 2, 12, 1),
    Sketcher.Constraint("Vertical", 0),
    Sketcher.Constraint("Horizontal", 1),
    Sketcher.Constraint("Vertical", 2),
    Sketcher.Constraint("Horizontal", 3),
    Sketcher.Constraint("Vertical", 4),
    Sketcher.Constraint("Horizontal", 5),
    Sketcher.Constraint("Vertical", 6),
    Sketcher.Constraint("Horizontal", 7),
    Sketcher.Constraint("Vertical", 8),
    Sketcher.Constraint("Horizontal", 9),
    Sketcher.Constraint("Vertical", 10),
    Sketcher.Constraint("Horizontal", 11),
    Sketcher.Constraint("Vertical", 12),
    Sketcher.Constraint("Horizontal", 13),
    Sketcher.Constraint("Vertical", 14),
    Sketcher.Constraint("Horizontal", 15),
    Sketcher.Constraint("Horizontal", 1, 2, 4, 2),
    Sketcher.Constraint("Horizontal", 3, 2, 6, 2),
    Sketcher.Constraint("Horizontal", 5, 2, 8, 2),
    Sketcher.Constraint("Horizontal", 7, 2, 10, 2),
    Sketcher.Constraint("Horizontal", 9, 2, 12, 2),
    Sketcher.Constraint("Horizontal", 11, 2, 14, 2),
    Sketcher.Constraint("Equal", 3, 5),
    Sketcher.Constraint("Equal", 7, 9),
    Sketcher.Constraint("Equal", 11, 13),
    Sketcher.Constraint("DistanceX", 1, 1, 1, 2, Q("27 mm")),
    Sketcher.Constraint("DistanceY", 0, 1, 0, 2, Q("3 mm")),
    Sketcher.Constraint("DistanceY", 0, 2, -1, 1, Q("132 mm")),
    Sketcher.Constraint("DistanceX", 1, 2, 4, 2, Q("3 mm")),
    Sketcher.Constraint("DistanceX", 5, 2, 8, 2, Q("3 mm")),
    Sketcher.Constraint("DistanceX", 9, 2, 12, 2, Q("3 mm")),
    Sketcher.Constraint("DistanceX", 0, 2, -1, 1, Q("57.2 mm")),
])
pocket6 = doc.addObject("PartDesign::Pocket", "Pocket005")
body.addObject(pocket6)
pocket6.Profile = sketch7
pocket6.Length = 3
pocket6.Reversed = True

sketch8 = doc.addObject("Sketcher::SketchObject", "Sketch007")
body.addObject(sketch8)
sketch8.AttachmentSupport = (doc.XZ_Plane, [""])
sketch8.MapMode = "FlatFace"
sketch8.AttachmentOffset = App.Placement(V(0, 0, -3), App.Rotation())
sketch8.addGeometry([
    Part.LineSegment(V(-165, 130, 0), V(-165, 140, 0)),
    Part.LineSegment(V(-165, 140, 0), V(-155, 140, 0)),
    Part.LineSegment(V(-155, 140, 0), V(-155, 130, 0)),
    Part.LineSegment(V(-155, 130, 0), V(-165, 130, 0)),
    Part.LineSegment(V(-165, 100, 0), V(-165, 110, 0)),
    Part.LineSegment(V(-165, 110, 0), V(-155, 110, 0)),
    Part.LineSegment(V(-155, 110, 0), V(-155, 100, 0)),
    Part.LineSegment(V(-155, 100, 0), V(-165, 100, 0)),
], False)
sketch8.addConstraint([
    Sketcher.Constraint("Coincident", 0, 2, 1, 1),
    Sketcher.Constraint("Coincident", 1, 2, 2, 1),
    Sketcher.Constraint("Coincident", 2, 2, 3, 1),
    Sketcher.Constraint("Coincident", 3, 2, 0, 1),
    Sketcher.Constraint("Coincident", 4, 2, 5, 1),
    Sketcher.Constraint("Coincident", 5, 2, 6, 1),
    Sketcher.Constraint("Coincident", 6, 2, 7, 1),
    Sketcher.Constraint("Coincident", 7, 2, 4, 1),
    Sketcher.Constraint("Vertical", 0),
    Sketcher.Constraint("Horizontal", 1),
    Sketcher.Constraint("Vertical", 2),
    Sketcher.Constraint("Horizontal", 3),
    Sketcher.Constraint("Vertical", 4),
    Sketcher.Constraint("Horizontal", 5),
    Sketcher.Constraint("Vertical", 6),
    Sketcher.Constraint("Horizontal", 7),
    Sketcher.Constraint("Vertical", 3, 2, 4, 2),
    Sketcher.Constraint("Vertical", 2, 2, 5, 2),
    Sketcher.Constraint("Equal", 7, 0),
    Sketcher.Constraint("Equal", 2, 4),
    Sketcher.Constraint("DistanceX", 1, 1, 1, 2, Q("10 mm")),
    Sketcher.Constraint("DistanceX", 0, 2, -1, 1, Q("165 mm")),
    Sketcher.Constraint("DistanceY", -1, 1, 0, 2, Q("140 mm")),
    Sketcher.Constraint("DistanceY", -1, 1, 4, 2, Q("110 mm")),
])
pocket7 = doc.addObject("PartDesign::Pocket", "Pocket006")
body.addObject(pocket7)
pocket7.Profile = sketch8
pocket7.Length = 3
pocket7.Reversed = True

sketch9 = doc.addObject("Sketcher::SketchObject", "Sketch008")
body.addObject(sketch9)
sketch9.AttachmentSupport = (doc.XZ_Plane, [""])
sketch9.MapMode = "FlatFace"
sketch9.AttachmentOffset = App.Placement(V(0, 0, -3), App.Rotation())
sketch9.addGeometry([
    Part.LineSegment(V(-7, 130, 0), V(-7, 140, 0)),
    Part.LineSegment(V(-7, 140, 0), V(3, 140, 0)),
    Part.LineSegment(V(3, 140, 0), V(3, 130, 0)),
    Part.LineSegment(V(3, 130, 0), V(-7, 130, 0)),
    Part.LineSegment(V(-7, 100, 0), V(-7, 110, 0)),
    Part.LineSegment(V(-7, 110, 0), V(3, 110, 0)),
    Part.LineSegment(V(3, 110, 0), V(3, 100, 0)),
    Part.LineSegment(V(3, 100, 0), V(-7, 100, 0)),
], False)
sketch9.addConstraint([
    Sketcher.Constraint("Coincident", 0, 2, 1, 1),
    Sketcher.Constraint("Coincident", 1, 2, 2, 1),
    Sketcher.Constraint("Coincident", 2, 2, 3, 1),
    Sketcher.Constraint("Coincident", 3, 2, 0, 1),
    Sketcher.Constraint("Coincident", 4, 2, 5, 1),
    Sketcher.Constraint("Coincident", 5, 2, 6, 1),
    Sketcher.Constraint("Coincident", 6, 2, 7, 1),
    Sketcher.Constraint("Coincident", 7, 2, 4, 1),
    Sketcher.Constraint("Vertical", 0),
    Sketcher.Constraint("Horizontal", 1),
    Sketcher.Constraint("Vertical", 2),
    Sketcher.Constraint("Horizontal", 3),
    Sketcher.Constraint("Vertical", 4),
    Sketcher.Constraint("Horizontal", 5),
    Sketcher.Constraint("Vertical", 6),
    Sketcher.Constraint("Horizontal", 7),
    Sketcher.Constraint("Vertical", 3, 2, 4, 2),
    Sketcher.Constraint("Vertical", 2, 2, 5, 2),
    Sketcher.Constraint("Equal", 7, 0),
    Sketcher.Constraint("Equal", 2, 4),
    Sketcher.Constraint("DistanceX", 1, 1, 1, 2, Q("10 mm")),
    Sketcher.Constraint("DistanceX", 0, 2, -1, 1, Q("7 mm")),
    Sketcher.Constraint("DistanceY", -1, 1, 0, 2, Q("140 mm")),
    Sketcher.Constraint("DistanceY", -1, 1, 4, 2, Q("110 mm")),
])
pocket8 = doc.addObject("PartDesign::Pocket", "Pocket007")
body.addObject(pocket8)
pocket8.Profile = sketch9
pocket8.Length = 3
pocket8.Reversed = True

sketch10 = doc.addObject("Sketcher::SketchObject", "Sketch009")
body.addObject(sketch10)
sketch10.AttachmentSupport = (doc.XZ_Plane, [""])
sketch10.MapMode = "FlatFace"
sketch10.AttachmentOffset = App.Placement(V(0, 0, -3), App.Rotation())
sketch10.addGeometry([
    Part.LineSegment(V(155, 130, 0), V(155, 140, 0)),
    Part.LineSegment(V(155, 140, 0), V(165, 140, 0)),
    Part.LineSegment(V(165, 140, 0), V(165, 130, 0)),
    Part.LineSegment(V(165, 130, 0), V(155, 130, 0)),
    Part.LineSegment(V(155, 100, 0), V(155, 110, 0)),
    Part.LineSegment(V(155, 110, 0), V(165, 110, 0)),
    Part.LineSegment(V(165, 110, 0), V(165, 100, 0)),
    Part.LineSegment(V(165, 100, 0), V(155, 100, 0)),
], False)
sketch10.addConstraint([
    Sketcher.Constraint("Coincident", 0, 2, 1, 1),
    Sketcher.Constraint("Coincident", 1, 2, 2, 1),
    Sketcher.Constraint("Coincident", 2, 2, 3, 1),
    Sketcher.Constraint("Coincident", 3, 2, 0, 1),
    Sketcher.Constraint("Coincident", 4, 2, 5, 1),
    Sketcher.Constraint("Coincident", 5, 2, 6, 1),
    Sketcher.Constraint("Coincident", 6, 2, 7, 1),
    Sketcher.Constraint("Coincident", 7, 2, 4, 1),
    Sketcher.Constraint("Vertical", 0),
    Sketcher.Constraint("Horizontal", 1),
    Sketcher.Constraint("Vertical", 2),
    Sketcher.Constraint("Horizontal", 3),
    Sketcher.Constraint("Vertical", 4),
    Sketcher.Constraint("Horizontal", 5),
    Sketcher.Constraint("Vertical", 6),
    Sketcher.Constraint("Horizontal", 7),
    Sketcher.Constraint("Vertical", 3, 2, 4, 2),
    Sketcher.Constraint("Vertical", 2, 2, 5, 2),
    Sketcher.Constraint("Equal", 7, 0),
    Sketcher.Constraint("Equal", 2, 4),
    Sketcher.Constraint("DistanceX", 1, 1, 1, 2, Q("10 mm")),
    Sketcher.Constraint("DistanceX", -1, 1, 0, 2, Q("155 mm")),
    Sketcher.Constraint("DistanceY", -1, 1, 0, 2, Q("140 mm")),
    Sketcher.Constraint("DistanceY", -1, 1, 4, 2, Q("110 mm")),
])
pocket9 = doc.addObject("PartDesign::Pocket", "Pocket008")
body.addObject(pocket9)
pocket9.Profile = sketch10
pocket9.Length = 3
pocket9.Reversed = True

sketch11 = doc.addObject("Sketcher::SketchObject", "Sketch010")
body.addObject(sketch11)
sketch11.AttachmentSupport = (doc.XZ_Plane, [""])
sketch11.MapMode = "FlatFace"
sketch11.addGeometry([
    Part.LineSegment(V(-190, -143, 0), V(-190, -146, 0)),
    Part.LineSegment(V(-190, -146, 0), V(-163, -146, 0)),
    Part.LineSegment(V(-163, -146, 0), V(-163, -143, 0)),
    Part.LineSegment(V(-163, -143, 0), V(-190, -143, 0)),
    Part.LineSegment(V(-119.4, -143, 0), V(-119.4, -146, 0)),
    Part.LineSegment(V(-119.4, -146, 0), V(-92.4, -146, 0)),
    Part.LineSegment(V(-92.4, -146, 0), V(-92.4, -143, 0)),
    Part.LineSegment(V(-92.4, -143, 0), V(-119.4, -143, 0)),
    Part.LineSegment(V(-48.8, -143, 0), V(-48.8, -146, 0)),
    Part.LineSegment(V(-48.8, -146, 0), V(-21.8, -146, 0)),
    Part.LineSegment(V(-21.8, -146, 0), V(-21.8, -143, 0)),
    Part.LineSegment(V(-21.8, -143, 0), V(-48.8, -143, 0)),
    Part.LineSegment(V(21.8, -143, 0), V(21.8, -146, 0)),
    Part.LineSegment(V(21.8, -146, 0), V(48.8, -146, 0)),
    Part.LineSegment(V(48.8, -146, 0), V(48.8, -143, 0)),
    Part.LineSegment(V(48.8, -143, 0), V(21.8, -143, 0)),
    Part.LineSegment(V(92.4, -143, 0), V(92.4, -146, 0)),
    Part.LineSegment(V(92.4, -146, 0), V(119.4, -146, 0)),
    Part.LineSegment(V(119.4, -146, 0), V(119.4, -143, 0)),
    Part.LineSegment(V(119.4, -143, 0), V(92.4, -143, 0)),
    Part.LineSegment(V(163, -143, 0), V(163, -146, 0)),
    Part.LineSegment(V(163, -146, 0), V(190, -146, 0)),
    Part.LineSegment(V(190, -146, 0), V(190, -143, 0)),
    Part.LineSegment(V(190, -143, 0), V(163, -143, 0)),
], False)
sketch11.addConstraint([
    Sketcher.Constraint("Coincident", 0, 2, 1, 1),
    Sketcher.Constraint("Coincident", 1, 2, 2, 1),
    Sketcher.Constraint("Coincident", 2, 2, 3, 1),
    Sketcher.Constraint("Coincident", 3, 2, 0, 1),
    Sketcher.Constraint("Coincident", 4, 2, 5, 1),
    Sketcher.Constraint("Coincident", 5, 2, 6, 1),
    Sketcher.Constraint("Coincident", 6, 2, 7, 1),
    Sketcher.Constraint("Coincident", 7, 2, 4, 1),
    Sketcher.Constraint("Coincident", 8, 2, 9, 1),
    Sketcher.Constraint("Coincident", 9, 2, 10, 1),
    Sketcher.Constraint("Coincident", 10, 2, 11, 1),
    Sketcher.Constraint("Coincident", 11, 2, 8, 1),
    Sketcher.Constraint("Coincident", 12, 2, 13, 1),
    Sketcher.Constraint("Coincident", 13, 2, 14, 1),
    Sketcher.Constraint("Coincident", 14, 2, 15, 1),
    Sketcher.Constraint("Coincident", 15, 2, 12, 1),
    Sketcher.Constraint("Coincident", 16, 2, 17, 1),
    Sketcher.Constraint("Coincident", 17, 2, 18, 1),
    Sketcher.Constraint("Coincident", 18, 2, 19, 1),
    Sketcher.Constraint("Coincident", 19, 2, 16, 1),
    Sketcher.Constraint("Coincident", 20, 2, 21, 1),
    Sketcher.Constraint("Coincident", 21, 2, 22, 1),
    Sketcher.Constraint("Coincident", 22, 2, 23, 1),
    Sketcher.Constraint("Coincident", 23, 2, 20, 1),
    Sketcher.Constraint("Vertical", 0),
    Sketcher.Constraint("Horizontal", 1),
    Sketcher.Constraint("Vertical", 2),
    Sketcher.Constraint("Horizontal", 3),
    Sketcher.Constraint("Vertical", 4),
    Sketcher.Constraint("Horizontal", 5),
    Sketcher.Constraint("Vertical", 6),
    Sketcher.Constraint("Horizontal", 7),
    Sketcher.Constraint("Vertical", 8),
    Sketcher.Constraint("Horizontal", 9),
    Sketcher.Constraint("Vertical", 10),
    Sketcher.Constraint("Horizontal", 11),
    Sketcher.Constraint("Vertical", 12),
    Sketcher.Constraint("Horizontal", 13),
    Sketcher.Constraint("Vertical", 14),
    Sketcher.Constraint("Horizontal", 15),
    Sketcher.Constraint("Vertical", 16),
    Sketcher.Constraint("Horizontal", 17),
    Sketcher.Constraint("Vertical", 18),
    Sketcher.Constraint("Horizontal", 19),
    Sketcher.Constraint("Vertical", 20),
    Sketcher.Constraint("Horizontal", 21),
    Sketcher.Constraint("Vertical", 22),
    Sketcher.Constraint("Horizontal", 23),
    Sketcher.Constraint("Symmetric", 9, 2, 12, 2, -2),
    Sketcher.Constraint("Symmetric", 11, 2, 14, 2, -2),
    Sketcher.Constraint("Symmetric", 5, 2, 16, 2, -2),
    Sketcher.Constraint("Symmetric", 7, 2, 18, 2, -2),
    Sketcher.Constraint("Symmetric", 1, 2, 20, 2, -2),
    Sketcher.Constraint("Symmetric", 3, 2, 22, 2, -2),
    Sketcher.Constraint("Horizontal", 1, 2, 4, 2),
    Sketcher.Constraint("Horizontal", 3, 2, 6, 2),
    Sketcher.Constraint("Horizontal", 5, 2, 8, 2),
    Sketcher.Constraint("Horizontal", 7, 2, 10, 2),
    Sketcher.Constraint("Equal", 3, 5),
    Sketcher.Constraint("Equal", 7, 9),
    Sketcher.Constraint("DistanceX", 1, 1, 1, 2, Q("27 mm")),
    Sketcher.Constraint("DistanceY", 0, 2, 0, 1, Q("3 mm")),
    Sketcher.Constraint("DistanceX", 0, 2, -1, 1, Q("190 mm")),
    Sketcher.Constraint("DistanceY", 0, 2, -1, 1, Q("146 mm")),
    Sketcher.Constraint("DistanceX", 4, 2, -1, 1, Q("119.4 mm")),
    Sketcher.Constraint("DistanceX", 8, 2, -1, 1, Q("48.8 mm")),
])
pocket10 = doc.addObject("PartDesign::Pocket", "Pocket009")
body.addObject(pocket10)
pocket10.Profile = sketch11
pocket10.Length = 10

sketch12 = doc.addObject("Sketcher::SketchObject", "Sketch011")
body.addObject(sketch12)
sketch12.AttachmentSupport = (doc.XZ_Plane, [""])
sketch12.MapMode = "FlatFace"
sketch12.addGeometry([
    Part.LineSegment(V(-163, 143, 0), V(-163, 146, 0)),
    Part.LineSegment(V(-163, 146, 0), V(-190, 146, 0)),
    Part.LineSegment(V(-190, 146, 0), V(-190, 143, 0)),
    Part.LineSegment(V(-190, 143, 0), V(-163, 143, 0)),
    Part.LineSegment(V(-92.4, 143, 0), V(-92.4, 146, 0)),
    Part.LineSegment(V(-92.4, 146, 0), V(-119.4, 146, 0)),
    Part.LineSegment(V(-119.4, 146, 0), V(-119.4, 143, 0)),
    Part.LineSegment(V(-119.4, 143, 0), V(-92.4, 143, 0)),
    Part.LineSegment(V(-21.8, 143, 0), V(-21.8, 146, 0)),
    Part.LineSegment(V(-21.8, 146, 0), V(-48.8, 146, 0)),
    Part.LineSegment(V(-48.8, 146, 0), V(-48.8, 143, 0)),
    Part.LineSegment(V(-48.8, 143, 0), V(-21.8, 143, 0)),
    Part.LineSegment(V(48.8, 143, 0), V(48.8, 146, 0)),
    Part.LineSegment(V(48.8, 146, 0), V(21.8, 146, 0)),
    Part.LineSegment(V(21.8, 146, 0), V(21.8, 143, 0)),
    Part.LineSegment(V(21.8, 143, 0), V(48.8, 143, 0)),
    Part.LineSegment(V(119.4, 143, 0), V(119.4, 146, 0)),
    Part.LineSegment(V(119.4, 146, 0), V(92.4, 146, 0)),
    Part.LineSegment(V(92.4, 146, 0), V(92.4, 143, 0)),
    Part.LineSegment(V(92.4, 143, 0), V(119.4, 143, 0)),
    Part.LineSegment(V(190, 143, 0), V(190, 146, 0)),
    Part.LineSegment(V(190, 146, 0), V(163, 146, 0)),
    Part.LineSegment(V(163, 146, 0), V(163, 143, 0)),
    Part.LineSegment(V(163, 143, 0), V(190, 143, 0)),
], False)
sketch12.addConstraint([
    Sketcher.Constraint("Coincident", 0, 2, 1, 1),
    Sketcher.Constraint("Coincident", 1, 2, 2, 1),
    Sketcher.Constraint("Coincident", 2, 2, 3, 1),
    Sketcher.Constraint("Coincident", 3, 2, 0, 1),
    Sketcher.Constraint("Coincident", 4, 2, 5, 1),
    Sketcher.Constraint("Coincident", 5, 2, 6, 1),
    Sketcher.Constraint("Coincident", 6, 2, 7, 1),
    Sketcher.Constraint("Coincident", 7, 2, 4, 1),
    Sketcher.Constraint("Coincident", 8, 2, 9, 1),
    Sketcher.Constraint("Coincident", 9, 2, 10, 1),
    Sketcher.Constraint("Coincident", 10, 2, 11, 1),
    Sketcher.Constraint("Coincident", 11, 2, 8, 1),
    Sketcher.Constraint("Coincident", 12, 2, 13, 1),
    Sketcher.Constraint("Coincident", 13, 2, 14, 1),
    Sketcher.Constraint("Coincident", 14, 2, 15, 1),
    Sketcher.Constraint("Coincident", 15, 2, 12, 1),
    Sketcher.Constraint("Coincident", 16, 2, 17, 1),
    Sketcher.Constraint("Coincident", 17, 2, 18, 1),
    Sketcher.Constraint("Coincident", 18, 2, 19, 1),
    Sketcher.Constraint("Coincident", 19, 2, 16, 1),
    Sketcher.Constraint("Coincident", 20, 2, 21, 1),
    Sketcher.Constraint("Coincident", 21, 2, 22, 1),
    Sketcher.Constraint("Coincident", 22, 2, 23, 1),
    Sketcher.Constraint("Coincident", 23, 2, 20, 1),
    Sketcher.Constraint("Vertical", 0),
    Sketcher.Constraint("Horizontal", 1),
    Sketcher.Constraint("Vertical", 2),
    Sketcher.Constraint("Horizontal", 3),
    Sketcher.Constraint("Vertical", 4),
    Sketcher.Constraint("Horizontal", 5),
    Sketcher.Constraint("Vertical", 6),
    Sketcher.Constraint("Horizontal", 7),
    Sketcher.Constraint("Vertical", 8),
    Sketcher.Constraint("Horizontal", 9),
    Sketcher.Constraint("Vertical", 10),
    Sketcher.Constraint("Horizontal", 11),
    Sketcher.Constraint("Vertical", 12),
    Sketcher.Constraint("Horizontal", 13),
    Sketcher.Constraint("Vertical", 14),
    Sketcher.Constraint("Horizontal", 15),
    Sketcher.Constraint("Vertical", 16),
    Sketcher.Constraint("Horizontal", 17),
    Sketcher.Constraint("Vertical", 18),
    Sketcher.Constraint("Horizontal", 19),
    Sketcher.Constraint("Vertical", 20),
    Sketcher.Constraint("Horizontal", 21),
    Sketcher.Constraint("Vertical", 22),
    Sketcher.Constraint("Horizontal", 23),
    Sketcher.Constraint("Symmetric", 9, 2, 12, 2, -2),
    Sketcher.Constraint("Symmetric", 11, 2, 14, 2, -2),
    Sketcher.Constraint("Symmetric", 5, 2, 16, 2, -2),
    Sketcher.Constraint("Symmetric", 7, 2, 18, 2, -2),
    Sketcher.Constraint("Symmetric", 1, 2, 20, 2, -2),
    Sketcher.Constraint("Symmetric", 3, 2, 22, 2, -2),
    Sketcher.Constraint("Horizontal", 1, 2, 4, 2),
    Sketcher.Constraint("Horizontal", 3, 2, 6, 2),
    Sketcher.Constraint("Horizontal", 5, 2, 8, 2),
    Sketcher.Constraint("Horizontal", 7, 2, 10, 2),
    Sketcher.Constraint("Equal", 3, 5),
    Sketcher.Constraint("Equal", 7, 9),
    Sketcher.Constraint("DistanceX", 1, 2, 1, 1, Q("27 mm")),
    Sketcher.Constraint("DistanceY", 0, 1, 0, 2, Q("3 mm")),
    Sketcher.Constraint("DistanceX", 0, 2, -1, 1, Q("163 mm")),
    Sketcher.Constraint("DistanceY", -1, 1, 0, 2, Q("146 mm")),
    Sketcher.Constraint("DistanceX", 4, 2, -1, 1, Q("92.4 mm")),
    Sketcher.Constraint("DistanceX", 8, 2, -1, 1, Q("21.8 mm")),
])
pocket11 = doc.addObject("PartDesign::Pocket", "Pocket010")
body.addObject(pocket11)
pocket11.Profile = sketch12
pocket11.Length = 10

doc.recompute()
